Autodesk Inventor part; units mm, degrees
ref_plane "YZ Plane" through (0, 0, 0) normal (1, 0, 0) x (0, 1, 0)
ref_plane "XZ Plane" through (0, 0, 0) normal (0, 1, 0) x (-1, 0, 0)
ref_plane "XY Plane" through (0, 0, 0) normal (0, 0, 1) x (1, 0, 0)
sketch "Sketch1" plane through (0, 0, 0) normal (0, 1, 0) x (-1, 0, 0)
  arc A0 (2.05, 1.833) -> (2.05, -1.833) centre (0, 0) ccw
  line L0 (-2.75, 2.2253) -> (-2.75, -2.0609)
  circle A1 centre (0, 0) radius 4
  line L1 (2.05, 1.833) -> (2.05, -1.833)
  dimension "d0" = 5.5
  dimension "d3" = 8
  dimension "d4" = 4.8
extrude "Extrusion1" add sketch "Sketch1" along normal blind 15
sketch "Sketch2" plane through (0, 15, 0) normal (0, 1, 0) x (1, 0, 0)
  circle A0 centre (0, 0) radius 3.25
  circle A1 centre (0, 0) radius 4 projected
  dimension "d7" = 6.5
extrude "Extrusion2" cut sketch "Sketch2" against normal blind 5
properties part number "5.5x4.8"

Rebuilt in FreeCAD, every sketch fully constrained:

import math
import FreeCAD as App
import Part
import Sketcher

V = App.Vector
Q = App.Units.Quantity

doc = App.newDocument("Part")
body = doc.addObject("PartDesign::Body", "Body")

sketch1 = body.newObject("Sketcher::SketchObject", "Sketch")
sketch1.AttachmentSupport = (doc.getObject("XZ_Plane"), [""])
sketch1.MapMode = "FlatFace"
sketch1.addGeometry(Part.Circle(V(0, 0, 0), V(0, 0, 1), 4), False)
sketch1.addGeometry(Part.ArcOfCircle(Part.Circle(V(0, 0, 0), V(0, 0, 1), 2.7), math.radians(-138), math.radians(138)), False)
sketch1.addGeometry(Part.LineSegment(V(-2, 1.8, 0), V(-2, -1.8, 0)), False)
sketch1.addConstraint(Sketcher.Constraint("Coincident", 1, 1, 2, 2))
sketch1.addConstraint(Sketcher.Constraint("Coincident", 2, 1, 1, 2))
sketch1.addConstraint(Sketcher.Constraint("Vertical", 2))
sketch1.addConstraint(Sketcher.Constraint("Coincident", 0, 3, -1, 1))
sketch1.addConstraint(Sketcher.Constraint("Coincident", 1, 3, -1, 1))
sketch1.addConstraint(Sketcher.Constraint("Diameter", 0, Q("8 mm")))
sketch1.addConstraint(Sketcher.Constraint("Radius", 1, Q("2.75 mm")))
sketch1.addConstraint(Sketcher.Constraint("DistanceY", 2, 2, 2, 1, Q("3.666 mm")))
pad1 = body.newObject("PartDesign::Pad", "Pad")
pad1.Profile = sketch1
pad1.Length = 15
pad1.Reversed = True

sketch2 = body.newObject("Sketcher::SketchObject", "Sketch001")
sketch2.AttachmentSupport = (doc.getObject("XZ_Plane"), [""])
sketch2.MapMode = "FlatFace"
sketch2.AttachmentOffset = App.Placement(V(0, 0, -15), App.Rotation())
sketch2.addGeometry(Part.Circle(V(0, 0, 0), V(0, 0, 1), 4), False)
sketch2.addGeometry(Part.Circle(V(0, 0, 0), V(0, 0, 1), 3.2), False)
sketch2.addConstraint(Sketcher.Constraint("Coincident", 0, 3, -1, 1))
sketch2.addConstraint(Sketcher.Constraint("Coincident", 1, 3, -1, 1))
sketch2.addConstraint(Sketcher.Constraint("Diameter", 1, Q("6.5 mm")))
sketch2.addConstraint(Sketcher.Constraint("Diameter", 0, Q("8 mm")))
pocket1 = body.newObject("PartDesign::Pocket", "Pocket")
pocket1.Profile = sketch2
pocket1.Length = 5
pocket1.Reversed = True

doc.recompute()
